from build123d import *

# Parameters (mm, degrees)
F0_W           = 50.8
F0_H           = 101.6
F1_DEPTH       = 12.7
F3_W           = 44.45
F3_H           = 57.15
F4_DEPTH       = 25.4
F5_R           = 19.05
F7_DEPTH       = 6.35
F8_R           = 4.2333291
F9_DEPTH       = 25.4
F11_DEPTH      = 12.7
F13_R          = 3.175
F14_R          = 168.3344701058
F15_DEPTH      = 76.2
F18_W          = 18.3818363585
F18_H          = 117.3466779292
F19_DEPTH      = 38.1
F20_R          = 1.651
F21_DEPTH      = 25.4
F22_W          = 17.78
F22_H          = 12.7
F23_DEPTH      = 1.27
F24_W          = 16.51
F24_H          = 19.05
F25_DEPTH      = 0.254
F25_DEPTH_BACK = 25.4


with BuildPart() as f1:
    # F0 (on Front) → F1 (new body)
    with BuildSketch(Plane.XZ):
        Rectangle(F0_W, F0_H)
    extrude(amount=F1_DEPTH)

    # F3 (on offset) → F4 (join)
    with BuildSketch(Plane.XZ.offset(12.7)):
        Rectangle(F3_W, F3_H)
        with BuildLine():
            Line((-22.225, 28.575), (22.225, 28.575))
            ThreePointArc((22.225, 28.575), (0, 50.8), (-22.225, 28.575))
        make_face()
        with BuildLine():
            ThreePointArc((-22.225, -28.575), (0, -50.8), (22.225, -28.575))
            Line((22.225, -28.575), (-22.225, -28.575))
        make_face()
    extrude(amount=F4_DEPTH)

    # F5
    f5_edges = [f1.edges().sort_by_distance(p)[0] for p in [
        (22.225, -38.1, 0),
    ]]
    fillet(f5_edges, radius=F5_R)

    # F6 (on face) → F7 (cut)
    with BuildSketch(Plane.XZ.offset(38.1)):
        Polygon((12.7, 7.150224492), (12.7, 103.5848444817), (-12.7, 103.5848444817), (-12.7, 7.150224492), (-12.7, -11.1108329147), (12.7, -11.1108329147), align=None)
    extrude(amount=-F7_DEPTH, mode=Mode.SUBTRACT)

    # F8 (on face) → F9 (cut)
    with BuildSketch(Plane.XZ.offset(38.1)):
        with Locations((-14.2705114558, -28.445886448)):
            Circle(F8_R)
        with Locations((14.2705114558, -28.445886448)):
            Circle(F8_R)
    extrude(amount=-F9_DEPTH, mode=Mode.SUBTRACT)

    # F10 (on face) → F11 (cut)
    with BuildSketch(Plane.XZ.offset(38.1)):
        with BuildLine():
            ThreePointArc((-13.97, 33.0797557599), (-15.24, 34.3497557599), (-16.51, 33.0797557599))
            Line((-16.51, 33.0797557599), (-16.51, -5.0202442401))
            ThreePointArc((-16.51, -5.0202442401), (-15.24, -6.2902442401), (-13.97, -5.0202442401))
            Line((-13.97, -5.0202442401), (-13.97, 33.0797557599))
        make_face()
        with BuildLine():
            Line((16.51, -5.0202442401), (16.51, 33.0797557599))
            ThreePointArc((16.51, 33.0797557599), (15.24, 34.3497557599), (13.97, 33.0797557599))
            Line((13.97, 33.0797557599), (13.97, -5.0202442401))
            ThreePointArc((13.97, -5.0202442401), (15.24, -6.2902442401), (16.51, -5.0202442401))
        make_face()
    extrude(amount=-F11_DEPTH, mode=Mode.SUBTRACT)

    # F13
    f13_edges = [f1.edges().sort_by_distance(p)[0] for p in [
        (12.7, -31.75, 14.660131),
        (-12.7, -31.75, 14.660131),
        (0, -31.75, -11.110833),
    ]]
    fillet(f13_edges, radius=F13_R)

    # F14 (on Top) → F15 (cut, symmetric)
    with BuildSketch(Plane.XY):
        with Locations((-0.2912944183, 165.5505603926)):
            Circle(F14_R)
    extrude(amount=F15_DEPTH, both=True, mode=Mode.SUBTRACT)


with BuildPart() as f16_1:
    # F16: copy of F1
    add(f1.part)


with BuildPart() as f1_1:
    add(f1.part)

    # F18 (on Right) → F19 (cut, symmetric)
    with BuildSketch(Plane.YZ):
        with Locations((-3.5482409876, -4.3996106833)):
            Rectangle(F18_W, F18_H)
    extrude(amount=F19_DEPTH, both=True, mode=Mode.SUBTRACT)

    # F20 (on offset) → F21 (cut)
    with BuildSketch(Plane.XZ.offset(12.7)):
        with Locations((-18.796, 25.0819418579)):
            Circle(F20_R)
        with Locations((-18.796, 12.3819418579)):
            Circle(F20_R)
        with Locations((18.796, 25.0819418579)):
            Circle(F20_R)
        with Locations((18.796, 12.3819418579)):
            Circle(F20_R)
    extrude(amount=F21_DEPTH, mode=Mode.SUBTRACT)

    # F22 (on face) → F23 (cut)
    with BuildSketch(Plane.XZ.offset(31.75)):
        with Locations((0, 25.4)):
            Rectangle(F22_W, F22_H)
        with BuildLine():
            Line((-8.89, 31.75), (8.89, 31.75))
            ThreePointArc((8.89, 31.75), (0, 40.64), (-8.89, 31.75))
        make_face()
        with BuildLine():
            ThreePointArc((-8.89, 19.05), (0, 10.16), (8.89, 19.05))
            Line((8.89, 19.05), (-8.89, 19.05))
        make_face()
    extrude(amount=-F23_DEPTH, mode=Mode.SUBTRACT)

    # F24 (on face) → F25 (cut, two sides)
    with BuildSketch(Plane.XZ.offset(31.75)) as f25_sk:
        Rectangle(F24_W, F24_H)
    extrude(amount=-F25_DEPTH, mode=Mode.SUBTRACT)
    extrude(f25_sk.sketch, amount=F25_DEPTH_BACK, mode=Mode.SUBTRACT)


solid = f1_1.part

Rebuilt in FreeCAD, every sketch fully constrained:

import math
import FreeCAD as App
import Part
import Sketcher

V = App.Vector
Q = App.Units.Quantity


def edges_at(feature, points):
    """Names of the edges that pass closest to the given points."""
    edges = feature.Shape.Edges
    near = lambda p: min(range(len(edges)), key=lambda i: edges[i].distToShape(Part.Vertex(*p))[0])
    return sorted({f"Edge{near(p) + 1}" for p in points})

doc = App.newDocument("Part")
params = doc.addObject("Spreadsheet::Sheet", "Params")
for row, (alias, value) in enumerate([
    ("sketch1_width", "2 in"),
    ("sketch1_height", "4 in"),
    ("pad1_length", "0.5 in"),
    ("sketch2_radius", "0.875 in"),
    ("sketch2_height", "2.25 in"),
    ("pad2_length", "1 in"),
    ("fillet_radius", "0.75 in"),
    ("sketch3_width", "1 in"),
    ("pocket1_length", "0.25 in"),
    ("pocket2_length", "1 in"),
    ("sketch5_radius", "0.05 in"),
    ("sketch5_height", "1.5 in"),
    ("pocket3_length", "0.5 in"),
    ("fillet2_radius", "0.125 in"),
    ("pocket4_length", "6 in"),
    ("pocket5_length", "3 in"),
    ("sketch8_diameter", "0.13 in"),
    ("pocket6_length", "1 in"),
    ("sketch9_radius", "0.35 in"),
    ("sketch9_height", "0.5 in"),
    ("pocket7_length", "0.05 in"),
    ("sketch10_width", "0.65 in"),
    ("sketch10_height", "0.75 in"),
    ("pocket8_length", "0.01 in"),
    ("pocket8_length2", "1 in"),
], start=1):
    params.set(f"A{row}", alias)
    params.set(f"B{row}", "=" + value)
    params.setAlias(f"B{row}", alias)

body = doc.addObject("PartDesign::Body", "Body")

# Sketch on XZ plane
sketch1 = doc.addObject("Sketcher::SketchObject", "Sketch")
body.addObject(sketch1)
sketch1.AttachmentSupport = (doc.XZ_Plane, [""])
sketch1.MapMode = "FlatFace"
sketch1.addGeometry([
    Part.LineSegment(V(-25.4, 50.8, 0), V(-25.4, -50.8, 0)),
    Part.LineSegment(V(-25.4, -50.8, 0), V(25.4, -50.8, 0)),
    Part.LineSegment(V(25.4, -50.8, 0), V(25.4, 50.8, 0)),
    Part.LineSegment(V(25.4, 50.8, 0), V(-25.4, 50.8, 0)),
], False)
sketch1.addConstraint([
    Sketcher.Constraint("Coincident", 0, 2, 1, 1),
    Sketcher.Constraint("Coincident", 1, 2, 2, 1),
    Sketcher.Constraint("Coincident", 2, 2, 3, 1),
    Sketcher.Constraint("Coincident", 3, 2, 0, 1),
    Sketcher.Constraint("Vertical", 0),
    Sketcher.Constraint("Horizontal", 1),
    Sketcher.Constraint("Vertical", 2),
    Sketcher.Constraint("Horizontal", 3),
    Sketcher.Constraint("Symmetric", 0, 2, 2, 2, -1, 1),
    Sketcher.Constraint("DistanceX", 1, 1, 1, 2, Q("2 in")),
    Sketcher.Constraint("DistanceY", 0, 2, 0, 1, Q("4 in")),
])
sketch1.setExpression("Constraints[9]", "Params.sketch1_width")
sketch1.setExpression("Constraints[10]", "Params.sketch1_height")
pad1 = doc.addObject("PartDesign::Pad", "Pad")
body.addObject(pad1)
pad1.Profile = sketch1
pad1.setExpression("Length", "Params.pad1_length")

# Sketch on XZ plane
sketch2 = doc.addObject("Sketcher::SketchObject", "Sketch001")
body.addObject(sketch2)
sketch2.AttachmentSupport = (doc.XZ_Plane, [""])
sketch2.MapMode = "FlatFace"
sketch2.AttachmentOffset = App.Placement(V(0, 0, 0.5 * 25.4), App.Rotation())
sketch2.addGeometry([
    Part.LineSegment(V(-22.225, 28.575, 0), V(-22.225, -28.575, 0)),
    Part.ArcOfCircle(Part.Circle(V(0, -28.575, 0), V(0, 0, 1), 22.225), math.radians(180), math.radians(360)),
    Part.LineSegment(V(22.225, -28.575, 0), V(22.225, 28.575, 0)),
    Part.ArcOfCircle(Part.Circle(V(0, 28.575, 0), V(0, 0, 1), 22.225), math.radians(0), math.radians(180)),
], False)
sketch2.addConstraint([
    Sketcher.Constraint("Tangent", 0, 2, 1, 1),
    Sketcher.Constraint("Tangent", 1, 2, 2, 1),
    Sketcher.Constraint("Tangent", 2, 2, 3, 1),
    Sketcher.Constraint("Tangent", 3, 2, 0, 1),
    Sketcher.Constraint("Vertical", 0),
    Sketcher.Constraint("Vertical", 2),
    Sketcher.Constraint("Symmetric", 1, 3, 3, 3, -1, 1),
    Sketcher.Constraint("Radius", 1, Q("0.875 in")),
    Sketcher.Constraint("DistanceY", 0, 2, 0, 1, Q("2.25 in")),
])
sketch2.setExpression("Constraints[7]", "Params.sketch2_radius")
sketch2.setExpression("Constraints[8]", "Params.sketch2_height")
pad2 = doc.addObject("PartDesign::Pad", "Pad001")
body.addObject(pad2)
pad2.Profile = sketch2
pad2.setExpression("Length", "Params.pad2_length")
doc.recompute()

fillet = doc.addObject("PartDesign::Fillet", "Fillet")
body.addObject(fillet)
fillet.Base = (pad2, edges_at(pad2, [(22.225, -38.1, 0)]))
fillet.setExpression("Radius", "Params.fillet_radius")

# Sketch on XZ plane
sketch3 = doc.addObject("Sketcher::SketchObject", "Sketch002")
body.addObject(sketch3)
sketch3.AttachmentSupport = (doc.XZ_Plane, [""])
sketch3.MapMode = "FlatFace"
sketch3.AttachmentOffset = App.Placement(V(0, 0, 1.5 * 25.4), App.Rotation())
sketch3.addGeometry([
    Part.LineSegment(V(12.7, 103.584844, 0), V(-12.7, 103.584844, 0)),
    Part.LineSegment(V(-12.7, 103.584844, 0), V(-12.7, -11.110833, 0)),
    Part.LineSegment(V(-12.7, -11.110833, 0), V(12.7, -11.110833, 0)),
    Part.LineSegment(V(12.7, -11.110833, 0), V(12.7, 103.584844, 0)),
], False)
sketch3.addConstraint([
    Sketcher.Constraint("Coincident", 0, 2, 1, 1),
    Sketcher.Constraint("Coincident", 1, 2, 2, 1),
    Sketcher.Constraint("Coincident", 2, 2, 3, 1),
    Sketcher.Constraint("Coincident", 3, 2, 0, 1),
    Sketcher.Constraint("Horizontal", 0),
    Sketcher.Constraint("Vertical", 1),
    Sketcher.Constraint("Horizontal", 2),
    Sketcher.Constraint("Vertical", 3),
    Sketcher.Constraint("DistanceX", 0, 2, 0, 1, Q("1 in")),
    Sketcher.Constraint("DistanceX", 0, 2, -1, 1, Q("0.5 in")),
    Sketcher.Constraint("DistanceY", 1, 2, 1, 1, 114.695677),
    Sketcher.Constraint("DistanceY", -1, 1, 0, 2, 103.584844),
])
sketch3.setExpression("Constraints[8]", "Params.sketch3_width")
pocket1 = doc.addObject("PartDesign::Pocket", "Pocket")
body.addObject(pocket1)
pocket1.Profile = sketch3
pocket1.setExpression("Length", "Params.pocket1_length")

# Sketch on XZ plane
sketch4 = doc.addObject("Sketcher::SketchObject", "Sketch003")
body.addObject(sketch4)
sketch4.AttachmentSupport = (doc.XZ_Plane, [""])
sketch4.MapMode = "FlatFace"
sketch4.AttachmentOffset = App.Placement(V(0, 0, 1.5 * 25.4), App.Rotation())
sketch4.addGeometry([
    Part.Circle(V(-14.270511, -28.445886, 0), V(0, 0, 1), 4.233329),
    Part.Circle(V(14.270511, -28.445886, 0), V(0, 0, 1), 4.233329),
], False)
sketch4.addConstraint([
    Sketcher.Constraint("Equal", 0, 1),
    Sketcher.Constraint("Symmetric", 0, 3, 1, 3, -2),
    Sketcher.Constraint("Diameter", 0, 8.466658),
    Sketcher.Constraint("DistanceX", 0, 3, -1, 1, 14.270511),
    Sketcher.Constraint("DistanceY", 0, 3, -1, 1, 28.445886),
])
pocket2 = doc.addObject("PartDesign::Pocket", "Pocket001")
body.addObject(pocket2)
pocket2.Profile = sketch4
pocket2.setExpression("Length", "Params.pocket2_length")

# Sketch on XZ plane
sketch5 = doc.addObject("Sketcher::SketchObject", "Sketch004")
body.addObject(sketch5)
sketch5.AttachmentSupport = (doc.XZ_Plane, [""])
sketch5.MapMode = "FlatFace"
sketch5.AttachmentOffset = App.Placement(V(0, 0, 1.5 * 25.4), App.Rotation())
sketch5.addGeometry([
    Part.ArcOfCircle(Part.Circle(V(-15.24, 33.079756, 0), V(0, 0, 1), 1.27), math.radians(0), math.radians(180)),  # 0
    Part.LineSegment(V(-16.51, 33.079756, 0), V(-16.51, -5.020244, 0)),  # 1
    Part.ArcOfCircle(Part.Circle(V(-15.24, -5.020244, 0), V(0, 0, 1), 1.27), math.radians(180), math.radians(360)),  # 2
    Part.LineSegment(V(-13.97, -5.020244, 0), V(-13.97, 33.079756, 0)),  # 3
    Part.LineSegment(V(16.51, -5.020244, 0), V(16.51, 33.079756, 0)),  # 4
    Part.ArcOfCircle(Part.Circle(V(15.24, 33.079756, 0), V(0, 0, 1), 1.27), math.radians(0), math.radians(180)),  # 5
    Part.LineSegment(V(13.97, 33.079756, 0), V(13.97, -5.020244, 0)),  # 6
    Part.ArcOfCircle(Part.Circle(V(15.24, -5.020244, 0), V(0, 0, 1), 1.27), math.radians(180), math.radians(360)),  # 7
], False)
sketch5.addConstraint([
    Sketcher.Constraint("Tangent", 0, 2, 1, 1),
    Sketcher.Constraint("Tangent", 1, 2, 2, 1),
    Sketcher.Constraint("Tangent", 2, 2, 3, 1),
    Sketcher.Constraint("Tangent", 3, 2, 0, 1),
    Sketcher.Constraint("Tangent", 4, 2, 5, 1),
    Sketcher.Constraint("Tangent", 5, 2, 6, 1),
    Sketcher.Constraint("Tangent", 6, 2, 7, 1),
    Sketcher.Constraint("Tangent", 7, 2, 4, 1),
    Sketcher.Constraint("Vertical", 1),
    Sketcher.Constraint("Vertical", 3),
    Sketcher.Constraint("Vertical", 4),
    Sketcher.Constraint("Vertical", 6),
    Sketcher.Constraint("Equal", 2, 5),
    Sketcher.Constraint("Symmetric", 0, 3, 5, 3, -2),
    Sketcher.Constraint("Horizontal", 2, 3, 7, 3),
    Sketcher.Constraint("Radius", 0, Q("0.05 in")),
    Sketcher.Constraint("DistanceY", 1, 2, 1, 1, Q("1.5 in")),
    Sketcher.Constraint("DistanceX", 0, 3, -1, 1, Q("0.6 in")),
    Sketcher.Constraint("DistanceY", -1, 1, 0, 3, 33.079756),
])
sketch5.setExpression("Constraints[15]", "Params.sketch5_radius")
sketch5.setExpression("Constraints[16]", "Params.sketch5_height")
pocket3 = doc.addObject("PartDesign::Pocket", "Pocket002")
body.addObject(pocket3)
pocket3.Profile = sketch5
pocket3.setExpression("Length", "Params.pocket3_length")
doc.recompute()

fillet2 = doc.addObject("PartDesign::Fillet", "Fillet001")
body.addObject(fillet2)
fillet2.Base = (pocket3, edges_at(pocket3, [(12.7, -31.75, 14.66), (-12.7, -31.75, 14.66), (0, -31.75, -11.111)]))
fillet2.setExpression("Radius", "Params.fillet2_radius")

# Sketch on XY plane
sketch6 = doc.addObject("Sketcher::SketchObject", "Sketch005")
body.addObject(sketch6)
sketch6.AttachmentSupport = (doc.XY_Plane, [""])
sketch6.MapMode = "FlatFace"
sketch6.addGeometry(Part.Circle(V(-0.291294, 165.55056, 0), V(0, 0, 1), 168.33447), False)
sketch6.addConstraint([
    Sketcher.Constraint("Diameter", 0, 336.66894),
    Sketcher.Constraint("DistanceY", -1, 1, 0, 3, 165.55056),
    Sketcher.Constraint("DistanceX", 0, 3, -1, 1, 0.291294),
])
pocket4 = doc.addObject("PartDesign::Pocket", "Pocket003")
body.addObject(pocket4)
pocket4.Profile = sketch6
pocket4.setExpression("Length", "Params.pocket4_length")
pocket4.Midplane = True
body2 = doc.addObject("PartDesign::Body", "Body001")
doc.recompute()

body2.BaseFeature = body
doc.recompute()

# Sketch on YZ plane
sketch7 = doc.addObject("Sketcher::SketchObject", "Sketch006")
body.addObject(sketch7)
sketch7.AttachmentSupport = (doc.YZ_Plane, [""])
sketch7.MapMode = "FlatFace"
sketch7.addGeometry([
    Part.LineSegment(V(-12.739159, 54.273728, 0), V(-12.739159, -63.07295, 0)),
    Part.LineSegment(V(-12.739159, -63.07295, 0), V(5.642677, -63.07295, 0)),
    Part.LineSegment(V(5.642677, -63.07295, 0), V(5.642677, 54.273728, 0)),
    Part.LineSegment(V(5.642677, 54.273728, 0), V(-12.739159, 54.273728, 0)),
], False)
sketch7.addConstraint([
    Sketcher.Constraint("Coincident", 0, 2, 1, 1),
    Sketcher.Constraint("Coincident", 1, 2, 2, 1),
    Sketcher.Constraint("Coincident", 2, 2, 3, 1),
    Sketcher.Constraint("Coincident", 3, 2, 0, 1),
    Sketcher.Constraint("Vertical", 0),
    Sketcher.Constraint("Horizontal", 1),
    Sketcher.Constraint("Vertical", 2),
    Sketcher.Constraint("Horizontal", 3),
    Sketcher.Constraint("DistanceX", 1, 1, 1, 2, 18.381836),
    Sketcher.Constraint("DistanceY", 0, 2, 0, 1, 117.346678),
    Sketcher.Constraint("DistanceX", 0, 2, -1, 1, 12.739159),
    Sketcher.Constraint("DistanceY", 0, 2, -1, 1, 63.07295),
])
pocket5 = doc.addObject("PartDesign::Pocket", "Pocket004")
body.addObject(pocket5)
pocket5.Profile = sketch7
pocket5.setExpression("Length", "Params.pocket5_length")
pocket5.Midplane = True

# Sketch on XZ plane
sketch8 = doc.addObject("Sketcher::SketchObject", "Sketch007")
body.addObject(sketch8)
sketch8.AttachmentSupport = (doc.XZ_Plane, [""])
sketch8.MapMode = "FlatFace"
sketch8.AttachmentOffset = App.Placement(V(0, 0, 0.5 * 25.4), App.Rotation())
sketch8.addGeometry([
    Part.Circle(V(-18.796, 25.081942, 0), V(0, 0, 1), 1.651),
    Part.Circle(V(-18.796, 12.381942, 0), V(0, 0, 1), 1.651),
    Part.Circle(V(18.796, 25.081942, 0), V(0, 0, 1), 1.651),
    Part.Circle(V(18.796, 12.381942, 0), V(0, 0, 1), 1.651),
], False)
sketch8.addConstraint([
    Sketcher.Constraint("Equal", 0, 1),
    Sketcher.Constraint("Equal", 1, 2),
    Sketcher.Constraint("Equal", 2, 3),
    Sketcher.Constraint("Symmetric", 0, 3, 2, 3, -2),
    Sketcher.Constraint("Symmetric", 1, 3, 3, 3, -2),
    Sketcher.Constraint("Vertical", 0, 3, 1, 3),
    Sketcher.Constraint("Diameter", 0, Q("0.13 in")),
    Sketcher.Constraint("DistanceY", 1, 3, 0, 3, Q("0.5 in")),
    Sketcher.Constraint("DistanceX", 0, 3, -1, 1, Q("0.74 in")),
    Sketcher.Constraint("DistanceY", -1, 1, 0, 3, 25.081942),
])
sketch8.setExpression("Constraints[6]", "Params.sketch8_diameter")
pocket6 = doc.addObject("PartDesign::Pocket", "Pocket005")
body.addObject(pocket6)
pocket6.Profile = sketch8
pocket6.setExpression("Length", "Params.pocket6_length")
pocket6.Reversed = True

# Sketch on XZ plane
sketch9 = doc.addObject("Sketcher::SketchObject", "Sketch008")
body.addObject(sketch9)
sketch9.AttachmentSupport = (doc.XZ_Plane, [""])
sketch9.MapMode = "FlatFace"
sketch9.AttachmentOffset = App.Placement(V(0, 0, 1.25 * 25.4), App.Rotation())
sketch9.addGeometry([
    Part.LineSegment(V(-8.89, 31.75, 0), V(-8.89, 19.05, 0)),
    Part.ArcOfCircle(Part.Circle(V(0, 19.05, 0), V(0, 0, 1), 8.89), math.radians(180), math.radians(360)),
    Part.LineSegment(V(8.89, 19.05, 0), V(8.89, 31.75, 0)),
    Part.ArcOfCircle(Part.Circle(V(0, 31.75, 0), V(0, 0, 1), 8.89), math.radians(0), math.radians(180)),
], False)
sketch9.addConstraint([
    Sketcher.Constraint("Tangent", 0, 2, 1, 1),
    Sketcher.Constraint("Tangent", 1, 2, 2, 1),
    Sketcher.Constraint("Tangent", 2, 2, 3, 1),
    Sketcher.Constraint("Tangent", 3, 2, 0, 1),
    Sketcher.Constraint("Vertical", 0),
    Sketcher.Constraint("Vertical", 2),
    Sketcher.Constraint("PointOnObject", 1, 3, -2),
    Sketcher.Constraint("Radius", 1, Q("0.35 in")),
    Sketcher.Constraint("DistanceY", 0, 2, 0, 1, Q("0.5 in")),
    Sketcher.Constraint("DistanceY", -1, 1, 1, 3, Q("0.75 in")),
])
sketch9.setExpression("Constraints[7]", "Params.sketch9_radius")
sketch9.setExpression("Constraints[8]", "Params.sketch9_height")
pocket7 = doc.addObject("PartDesign::Pocket", "Pocket006")
body.addObject(pocket7)
pocket7.Profile = sketch9
pocket7.setExpression("Length", "Params.pocket7_length")

# Sketch on XZ plane
sketch10 = doc.addObject("Sketcher::SketchObject", "Sketch009")
body.addObject(sketch10)
sketch10.AttachmentSupport = (doc.XZ_Plane, [""])
sketch10.MapMode = "FlatFace"
sketch10.AttachmentOffset = App.Placement(V(0, 0, 1.25 * 25.4), App.Rotation())
sketch10.addGeometry([
    Part.LineSegment(V(-8.255, 9.525, 0), V(-8.255, -9.525, 0)),
    Part.LineSegment(V(-8.255, -9.525, 0), V(8.255, -9.525, 0)),
    Part.LineSegment(V(8.255, -9.525, 0), V(8.255, 9.525, 0)),
    Part.LineSegment(V(8.255, 9.525, 0), V(-8.255, 9.525, 0)),
], False)
sketch10.addConstraint([
    Sketcher.Constraint("Coincident", 0, 2, 1, 1),
    Sketcher.Constraint("Coincident", 1, 2, 2, 1),
    Sketcher.Constraint("Coincident", 2, 2, 3, 1),
    Sketcher.Constraint("Coincident", 3, 2, 0, 1),
    Sketcher.Constraint("Vertical", 0),
    Sketcher.Constraint("Horizontal", 1),
    Sketcher.Constraint("Vertical", 2),
    Sketcher.Constraint("Horizontal", 3),
    Sketcher.Constraint("Symmetric", 0, 2, 2, 2, -1, 1),
    Sketcher.Constraint("DistanceX", 1, 1, 1, 2, Q("0.65 in")),
    Sketcher.Constraint("DistanceY", 0, 2, 0, 1, Q("0.75 in")),
])
sketch10.setExpression("Constraints[9]", "Params.sketch10_width")
sketch10.setExpression("Constraints[10]", "Params.sketch10_height")
pocket8 = doc.addObject("PartDesign::Pocket", "Pocket007")
body.addObject(pocket8)
pocket8.Profile = sketch10
pocket8.Type = "TwoLengths"
pocket8.setExpression("Length", "Params.pocket8_length")
pocket8.setExpression("Length2", "Params.pocket8_length2")
body.Visibility = False

doc.recompute()
